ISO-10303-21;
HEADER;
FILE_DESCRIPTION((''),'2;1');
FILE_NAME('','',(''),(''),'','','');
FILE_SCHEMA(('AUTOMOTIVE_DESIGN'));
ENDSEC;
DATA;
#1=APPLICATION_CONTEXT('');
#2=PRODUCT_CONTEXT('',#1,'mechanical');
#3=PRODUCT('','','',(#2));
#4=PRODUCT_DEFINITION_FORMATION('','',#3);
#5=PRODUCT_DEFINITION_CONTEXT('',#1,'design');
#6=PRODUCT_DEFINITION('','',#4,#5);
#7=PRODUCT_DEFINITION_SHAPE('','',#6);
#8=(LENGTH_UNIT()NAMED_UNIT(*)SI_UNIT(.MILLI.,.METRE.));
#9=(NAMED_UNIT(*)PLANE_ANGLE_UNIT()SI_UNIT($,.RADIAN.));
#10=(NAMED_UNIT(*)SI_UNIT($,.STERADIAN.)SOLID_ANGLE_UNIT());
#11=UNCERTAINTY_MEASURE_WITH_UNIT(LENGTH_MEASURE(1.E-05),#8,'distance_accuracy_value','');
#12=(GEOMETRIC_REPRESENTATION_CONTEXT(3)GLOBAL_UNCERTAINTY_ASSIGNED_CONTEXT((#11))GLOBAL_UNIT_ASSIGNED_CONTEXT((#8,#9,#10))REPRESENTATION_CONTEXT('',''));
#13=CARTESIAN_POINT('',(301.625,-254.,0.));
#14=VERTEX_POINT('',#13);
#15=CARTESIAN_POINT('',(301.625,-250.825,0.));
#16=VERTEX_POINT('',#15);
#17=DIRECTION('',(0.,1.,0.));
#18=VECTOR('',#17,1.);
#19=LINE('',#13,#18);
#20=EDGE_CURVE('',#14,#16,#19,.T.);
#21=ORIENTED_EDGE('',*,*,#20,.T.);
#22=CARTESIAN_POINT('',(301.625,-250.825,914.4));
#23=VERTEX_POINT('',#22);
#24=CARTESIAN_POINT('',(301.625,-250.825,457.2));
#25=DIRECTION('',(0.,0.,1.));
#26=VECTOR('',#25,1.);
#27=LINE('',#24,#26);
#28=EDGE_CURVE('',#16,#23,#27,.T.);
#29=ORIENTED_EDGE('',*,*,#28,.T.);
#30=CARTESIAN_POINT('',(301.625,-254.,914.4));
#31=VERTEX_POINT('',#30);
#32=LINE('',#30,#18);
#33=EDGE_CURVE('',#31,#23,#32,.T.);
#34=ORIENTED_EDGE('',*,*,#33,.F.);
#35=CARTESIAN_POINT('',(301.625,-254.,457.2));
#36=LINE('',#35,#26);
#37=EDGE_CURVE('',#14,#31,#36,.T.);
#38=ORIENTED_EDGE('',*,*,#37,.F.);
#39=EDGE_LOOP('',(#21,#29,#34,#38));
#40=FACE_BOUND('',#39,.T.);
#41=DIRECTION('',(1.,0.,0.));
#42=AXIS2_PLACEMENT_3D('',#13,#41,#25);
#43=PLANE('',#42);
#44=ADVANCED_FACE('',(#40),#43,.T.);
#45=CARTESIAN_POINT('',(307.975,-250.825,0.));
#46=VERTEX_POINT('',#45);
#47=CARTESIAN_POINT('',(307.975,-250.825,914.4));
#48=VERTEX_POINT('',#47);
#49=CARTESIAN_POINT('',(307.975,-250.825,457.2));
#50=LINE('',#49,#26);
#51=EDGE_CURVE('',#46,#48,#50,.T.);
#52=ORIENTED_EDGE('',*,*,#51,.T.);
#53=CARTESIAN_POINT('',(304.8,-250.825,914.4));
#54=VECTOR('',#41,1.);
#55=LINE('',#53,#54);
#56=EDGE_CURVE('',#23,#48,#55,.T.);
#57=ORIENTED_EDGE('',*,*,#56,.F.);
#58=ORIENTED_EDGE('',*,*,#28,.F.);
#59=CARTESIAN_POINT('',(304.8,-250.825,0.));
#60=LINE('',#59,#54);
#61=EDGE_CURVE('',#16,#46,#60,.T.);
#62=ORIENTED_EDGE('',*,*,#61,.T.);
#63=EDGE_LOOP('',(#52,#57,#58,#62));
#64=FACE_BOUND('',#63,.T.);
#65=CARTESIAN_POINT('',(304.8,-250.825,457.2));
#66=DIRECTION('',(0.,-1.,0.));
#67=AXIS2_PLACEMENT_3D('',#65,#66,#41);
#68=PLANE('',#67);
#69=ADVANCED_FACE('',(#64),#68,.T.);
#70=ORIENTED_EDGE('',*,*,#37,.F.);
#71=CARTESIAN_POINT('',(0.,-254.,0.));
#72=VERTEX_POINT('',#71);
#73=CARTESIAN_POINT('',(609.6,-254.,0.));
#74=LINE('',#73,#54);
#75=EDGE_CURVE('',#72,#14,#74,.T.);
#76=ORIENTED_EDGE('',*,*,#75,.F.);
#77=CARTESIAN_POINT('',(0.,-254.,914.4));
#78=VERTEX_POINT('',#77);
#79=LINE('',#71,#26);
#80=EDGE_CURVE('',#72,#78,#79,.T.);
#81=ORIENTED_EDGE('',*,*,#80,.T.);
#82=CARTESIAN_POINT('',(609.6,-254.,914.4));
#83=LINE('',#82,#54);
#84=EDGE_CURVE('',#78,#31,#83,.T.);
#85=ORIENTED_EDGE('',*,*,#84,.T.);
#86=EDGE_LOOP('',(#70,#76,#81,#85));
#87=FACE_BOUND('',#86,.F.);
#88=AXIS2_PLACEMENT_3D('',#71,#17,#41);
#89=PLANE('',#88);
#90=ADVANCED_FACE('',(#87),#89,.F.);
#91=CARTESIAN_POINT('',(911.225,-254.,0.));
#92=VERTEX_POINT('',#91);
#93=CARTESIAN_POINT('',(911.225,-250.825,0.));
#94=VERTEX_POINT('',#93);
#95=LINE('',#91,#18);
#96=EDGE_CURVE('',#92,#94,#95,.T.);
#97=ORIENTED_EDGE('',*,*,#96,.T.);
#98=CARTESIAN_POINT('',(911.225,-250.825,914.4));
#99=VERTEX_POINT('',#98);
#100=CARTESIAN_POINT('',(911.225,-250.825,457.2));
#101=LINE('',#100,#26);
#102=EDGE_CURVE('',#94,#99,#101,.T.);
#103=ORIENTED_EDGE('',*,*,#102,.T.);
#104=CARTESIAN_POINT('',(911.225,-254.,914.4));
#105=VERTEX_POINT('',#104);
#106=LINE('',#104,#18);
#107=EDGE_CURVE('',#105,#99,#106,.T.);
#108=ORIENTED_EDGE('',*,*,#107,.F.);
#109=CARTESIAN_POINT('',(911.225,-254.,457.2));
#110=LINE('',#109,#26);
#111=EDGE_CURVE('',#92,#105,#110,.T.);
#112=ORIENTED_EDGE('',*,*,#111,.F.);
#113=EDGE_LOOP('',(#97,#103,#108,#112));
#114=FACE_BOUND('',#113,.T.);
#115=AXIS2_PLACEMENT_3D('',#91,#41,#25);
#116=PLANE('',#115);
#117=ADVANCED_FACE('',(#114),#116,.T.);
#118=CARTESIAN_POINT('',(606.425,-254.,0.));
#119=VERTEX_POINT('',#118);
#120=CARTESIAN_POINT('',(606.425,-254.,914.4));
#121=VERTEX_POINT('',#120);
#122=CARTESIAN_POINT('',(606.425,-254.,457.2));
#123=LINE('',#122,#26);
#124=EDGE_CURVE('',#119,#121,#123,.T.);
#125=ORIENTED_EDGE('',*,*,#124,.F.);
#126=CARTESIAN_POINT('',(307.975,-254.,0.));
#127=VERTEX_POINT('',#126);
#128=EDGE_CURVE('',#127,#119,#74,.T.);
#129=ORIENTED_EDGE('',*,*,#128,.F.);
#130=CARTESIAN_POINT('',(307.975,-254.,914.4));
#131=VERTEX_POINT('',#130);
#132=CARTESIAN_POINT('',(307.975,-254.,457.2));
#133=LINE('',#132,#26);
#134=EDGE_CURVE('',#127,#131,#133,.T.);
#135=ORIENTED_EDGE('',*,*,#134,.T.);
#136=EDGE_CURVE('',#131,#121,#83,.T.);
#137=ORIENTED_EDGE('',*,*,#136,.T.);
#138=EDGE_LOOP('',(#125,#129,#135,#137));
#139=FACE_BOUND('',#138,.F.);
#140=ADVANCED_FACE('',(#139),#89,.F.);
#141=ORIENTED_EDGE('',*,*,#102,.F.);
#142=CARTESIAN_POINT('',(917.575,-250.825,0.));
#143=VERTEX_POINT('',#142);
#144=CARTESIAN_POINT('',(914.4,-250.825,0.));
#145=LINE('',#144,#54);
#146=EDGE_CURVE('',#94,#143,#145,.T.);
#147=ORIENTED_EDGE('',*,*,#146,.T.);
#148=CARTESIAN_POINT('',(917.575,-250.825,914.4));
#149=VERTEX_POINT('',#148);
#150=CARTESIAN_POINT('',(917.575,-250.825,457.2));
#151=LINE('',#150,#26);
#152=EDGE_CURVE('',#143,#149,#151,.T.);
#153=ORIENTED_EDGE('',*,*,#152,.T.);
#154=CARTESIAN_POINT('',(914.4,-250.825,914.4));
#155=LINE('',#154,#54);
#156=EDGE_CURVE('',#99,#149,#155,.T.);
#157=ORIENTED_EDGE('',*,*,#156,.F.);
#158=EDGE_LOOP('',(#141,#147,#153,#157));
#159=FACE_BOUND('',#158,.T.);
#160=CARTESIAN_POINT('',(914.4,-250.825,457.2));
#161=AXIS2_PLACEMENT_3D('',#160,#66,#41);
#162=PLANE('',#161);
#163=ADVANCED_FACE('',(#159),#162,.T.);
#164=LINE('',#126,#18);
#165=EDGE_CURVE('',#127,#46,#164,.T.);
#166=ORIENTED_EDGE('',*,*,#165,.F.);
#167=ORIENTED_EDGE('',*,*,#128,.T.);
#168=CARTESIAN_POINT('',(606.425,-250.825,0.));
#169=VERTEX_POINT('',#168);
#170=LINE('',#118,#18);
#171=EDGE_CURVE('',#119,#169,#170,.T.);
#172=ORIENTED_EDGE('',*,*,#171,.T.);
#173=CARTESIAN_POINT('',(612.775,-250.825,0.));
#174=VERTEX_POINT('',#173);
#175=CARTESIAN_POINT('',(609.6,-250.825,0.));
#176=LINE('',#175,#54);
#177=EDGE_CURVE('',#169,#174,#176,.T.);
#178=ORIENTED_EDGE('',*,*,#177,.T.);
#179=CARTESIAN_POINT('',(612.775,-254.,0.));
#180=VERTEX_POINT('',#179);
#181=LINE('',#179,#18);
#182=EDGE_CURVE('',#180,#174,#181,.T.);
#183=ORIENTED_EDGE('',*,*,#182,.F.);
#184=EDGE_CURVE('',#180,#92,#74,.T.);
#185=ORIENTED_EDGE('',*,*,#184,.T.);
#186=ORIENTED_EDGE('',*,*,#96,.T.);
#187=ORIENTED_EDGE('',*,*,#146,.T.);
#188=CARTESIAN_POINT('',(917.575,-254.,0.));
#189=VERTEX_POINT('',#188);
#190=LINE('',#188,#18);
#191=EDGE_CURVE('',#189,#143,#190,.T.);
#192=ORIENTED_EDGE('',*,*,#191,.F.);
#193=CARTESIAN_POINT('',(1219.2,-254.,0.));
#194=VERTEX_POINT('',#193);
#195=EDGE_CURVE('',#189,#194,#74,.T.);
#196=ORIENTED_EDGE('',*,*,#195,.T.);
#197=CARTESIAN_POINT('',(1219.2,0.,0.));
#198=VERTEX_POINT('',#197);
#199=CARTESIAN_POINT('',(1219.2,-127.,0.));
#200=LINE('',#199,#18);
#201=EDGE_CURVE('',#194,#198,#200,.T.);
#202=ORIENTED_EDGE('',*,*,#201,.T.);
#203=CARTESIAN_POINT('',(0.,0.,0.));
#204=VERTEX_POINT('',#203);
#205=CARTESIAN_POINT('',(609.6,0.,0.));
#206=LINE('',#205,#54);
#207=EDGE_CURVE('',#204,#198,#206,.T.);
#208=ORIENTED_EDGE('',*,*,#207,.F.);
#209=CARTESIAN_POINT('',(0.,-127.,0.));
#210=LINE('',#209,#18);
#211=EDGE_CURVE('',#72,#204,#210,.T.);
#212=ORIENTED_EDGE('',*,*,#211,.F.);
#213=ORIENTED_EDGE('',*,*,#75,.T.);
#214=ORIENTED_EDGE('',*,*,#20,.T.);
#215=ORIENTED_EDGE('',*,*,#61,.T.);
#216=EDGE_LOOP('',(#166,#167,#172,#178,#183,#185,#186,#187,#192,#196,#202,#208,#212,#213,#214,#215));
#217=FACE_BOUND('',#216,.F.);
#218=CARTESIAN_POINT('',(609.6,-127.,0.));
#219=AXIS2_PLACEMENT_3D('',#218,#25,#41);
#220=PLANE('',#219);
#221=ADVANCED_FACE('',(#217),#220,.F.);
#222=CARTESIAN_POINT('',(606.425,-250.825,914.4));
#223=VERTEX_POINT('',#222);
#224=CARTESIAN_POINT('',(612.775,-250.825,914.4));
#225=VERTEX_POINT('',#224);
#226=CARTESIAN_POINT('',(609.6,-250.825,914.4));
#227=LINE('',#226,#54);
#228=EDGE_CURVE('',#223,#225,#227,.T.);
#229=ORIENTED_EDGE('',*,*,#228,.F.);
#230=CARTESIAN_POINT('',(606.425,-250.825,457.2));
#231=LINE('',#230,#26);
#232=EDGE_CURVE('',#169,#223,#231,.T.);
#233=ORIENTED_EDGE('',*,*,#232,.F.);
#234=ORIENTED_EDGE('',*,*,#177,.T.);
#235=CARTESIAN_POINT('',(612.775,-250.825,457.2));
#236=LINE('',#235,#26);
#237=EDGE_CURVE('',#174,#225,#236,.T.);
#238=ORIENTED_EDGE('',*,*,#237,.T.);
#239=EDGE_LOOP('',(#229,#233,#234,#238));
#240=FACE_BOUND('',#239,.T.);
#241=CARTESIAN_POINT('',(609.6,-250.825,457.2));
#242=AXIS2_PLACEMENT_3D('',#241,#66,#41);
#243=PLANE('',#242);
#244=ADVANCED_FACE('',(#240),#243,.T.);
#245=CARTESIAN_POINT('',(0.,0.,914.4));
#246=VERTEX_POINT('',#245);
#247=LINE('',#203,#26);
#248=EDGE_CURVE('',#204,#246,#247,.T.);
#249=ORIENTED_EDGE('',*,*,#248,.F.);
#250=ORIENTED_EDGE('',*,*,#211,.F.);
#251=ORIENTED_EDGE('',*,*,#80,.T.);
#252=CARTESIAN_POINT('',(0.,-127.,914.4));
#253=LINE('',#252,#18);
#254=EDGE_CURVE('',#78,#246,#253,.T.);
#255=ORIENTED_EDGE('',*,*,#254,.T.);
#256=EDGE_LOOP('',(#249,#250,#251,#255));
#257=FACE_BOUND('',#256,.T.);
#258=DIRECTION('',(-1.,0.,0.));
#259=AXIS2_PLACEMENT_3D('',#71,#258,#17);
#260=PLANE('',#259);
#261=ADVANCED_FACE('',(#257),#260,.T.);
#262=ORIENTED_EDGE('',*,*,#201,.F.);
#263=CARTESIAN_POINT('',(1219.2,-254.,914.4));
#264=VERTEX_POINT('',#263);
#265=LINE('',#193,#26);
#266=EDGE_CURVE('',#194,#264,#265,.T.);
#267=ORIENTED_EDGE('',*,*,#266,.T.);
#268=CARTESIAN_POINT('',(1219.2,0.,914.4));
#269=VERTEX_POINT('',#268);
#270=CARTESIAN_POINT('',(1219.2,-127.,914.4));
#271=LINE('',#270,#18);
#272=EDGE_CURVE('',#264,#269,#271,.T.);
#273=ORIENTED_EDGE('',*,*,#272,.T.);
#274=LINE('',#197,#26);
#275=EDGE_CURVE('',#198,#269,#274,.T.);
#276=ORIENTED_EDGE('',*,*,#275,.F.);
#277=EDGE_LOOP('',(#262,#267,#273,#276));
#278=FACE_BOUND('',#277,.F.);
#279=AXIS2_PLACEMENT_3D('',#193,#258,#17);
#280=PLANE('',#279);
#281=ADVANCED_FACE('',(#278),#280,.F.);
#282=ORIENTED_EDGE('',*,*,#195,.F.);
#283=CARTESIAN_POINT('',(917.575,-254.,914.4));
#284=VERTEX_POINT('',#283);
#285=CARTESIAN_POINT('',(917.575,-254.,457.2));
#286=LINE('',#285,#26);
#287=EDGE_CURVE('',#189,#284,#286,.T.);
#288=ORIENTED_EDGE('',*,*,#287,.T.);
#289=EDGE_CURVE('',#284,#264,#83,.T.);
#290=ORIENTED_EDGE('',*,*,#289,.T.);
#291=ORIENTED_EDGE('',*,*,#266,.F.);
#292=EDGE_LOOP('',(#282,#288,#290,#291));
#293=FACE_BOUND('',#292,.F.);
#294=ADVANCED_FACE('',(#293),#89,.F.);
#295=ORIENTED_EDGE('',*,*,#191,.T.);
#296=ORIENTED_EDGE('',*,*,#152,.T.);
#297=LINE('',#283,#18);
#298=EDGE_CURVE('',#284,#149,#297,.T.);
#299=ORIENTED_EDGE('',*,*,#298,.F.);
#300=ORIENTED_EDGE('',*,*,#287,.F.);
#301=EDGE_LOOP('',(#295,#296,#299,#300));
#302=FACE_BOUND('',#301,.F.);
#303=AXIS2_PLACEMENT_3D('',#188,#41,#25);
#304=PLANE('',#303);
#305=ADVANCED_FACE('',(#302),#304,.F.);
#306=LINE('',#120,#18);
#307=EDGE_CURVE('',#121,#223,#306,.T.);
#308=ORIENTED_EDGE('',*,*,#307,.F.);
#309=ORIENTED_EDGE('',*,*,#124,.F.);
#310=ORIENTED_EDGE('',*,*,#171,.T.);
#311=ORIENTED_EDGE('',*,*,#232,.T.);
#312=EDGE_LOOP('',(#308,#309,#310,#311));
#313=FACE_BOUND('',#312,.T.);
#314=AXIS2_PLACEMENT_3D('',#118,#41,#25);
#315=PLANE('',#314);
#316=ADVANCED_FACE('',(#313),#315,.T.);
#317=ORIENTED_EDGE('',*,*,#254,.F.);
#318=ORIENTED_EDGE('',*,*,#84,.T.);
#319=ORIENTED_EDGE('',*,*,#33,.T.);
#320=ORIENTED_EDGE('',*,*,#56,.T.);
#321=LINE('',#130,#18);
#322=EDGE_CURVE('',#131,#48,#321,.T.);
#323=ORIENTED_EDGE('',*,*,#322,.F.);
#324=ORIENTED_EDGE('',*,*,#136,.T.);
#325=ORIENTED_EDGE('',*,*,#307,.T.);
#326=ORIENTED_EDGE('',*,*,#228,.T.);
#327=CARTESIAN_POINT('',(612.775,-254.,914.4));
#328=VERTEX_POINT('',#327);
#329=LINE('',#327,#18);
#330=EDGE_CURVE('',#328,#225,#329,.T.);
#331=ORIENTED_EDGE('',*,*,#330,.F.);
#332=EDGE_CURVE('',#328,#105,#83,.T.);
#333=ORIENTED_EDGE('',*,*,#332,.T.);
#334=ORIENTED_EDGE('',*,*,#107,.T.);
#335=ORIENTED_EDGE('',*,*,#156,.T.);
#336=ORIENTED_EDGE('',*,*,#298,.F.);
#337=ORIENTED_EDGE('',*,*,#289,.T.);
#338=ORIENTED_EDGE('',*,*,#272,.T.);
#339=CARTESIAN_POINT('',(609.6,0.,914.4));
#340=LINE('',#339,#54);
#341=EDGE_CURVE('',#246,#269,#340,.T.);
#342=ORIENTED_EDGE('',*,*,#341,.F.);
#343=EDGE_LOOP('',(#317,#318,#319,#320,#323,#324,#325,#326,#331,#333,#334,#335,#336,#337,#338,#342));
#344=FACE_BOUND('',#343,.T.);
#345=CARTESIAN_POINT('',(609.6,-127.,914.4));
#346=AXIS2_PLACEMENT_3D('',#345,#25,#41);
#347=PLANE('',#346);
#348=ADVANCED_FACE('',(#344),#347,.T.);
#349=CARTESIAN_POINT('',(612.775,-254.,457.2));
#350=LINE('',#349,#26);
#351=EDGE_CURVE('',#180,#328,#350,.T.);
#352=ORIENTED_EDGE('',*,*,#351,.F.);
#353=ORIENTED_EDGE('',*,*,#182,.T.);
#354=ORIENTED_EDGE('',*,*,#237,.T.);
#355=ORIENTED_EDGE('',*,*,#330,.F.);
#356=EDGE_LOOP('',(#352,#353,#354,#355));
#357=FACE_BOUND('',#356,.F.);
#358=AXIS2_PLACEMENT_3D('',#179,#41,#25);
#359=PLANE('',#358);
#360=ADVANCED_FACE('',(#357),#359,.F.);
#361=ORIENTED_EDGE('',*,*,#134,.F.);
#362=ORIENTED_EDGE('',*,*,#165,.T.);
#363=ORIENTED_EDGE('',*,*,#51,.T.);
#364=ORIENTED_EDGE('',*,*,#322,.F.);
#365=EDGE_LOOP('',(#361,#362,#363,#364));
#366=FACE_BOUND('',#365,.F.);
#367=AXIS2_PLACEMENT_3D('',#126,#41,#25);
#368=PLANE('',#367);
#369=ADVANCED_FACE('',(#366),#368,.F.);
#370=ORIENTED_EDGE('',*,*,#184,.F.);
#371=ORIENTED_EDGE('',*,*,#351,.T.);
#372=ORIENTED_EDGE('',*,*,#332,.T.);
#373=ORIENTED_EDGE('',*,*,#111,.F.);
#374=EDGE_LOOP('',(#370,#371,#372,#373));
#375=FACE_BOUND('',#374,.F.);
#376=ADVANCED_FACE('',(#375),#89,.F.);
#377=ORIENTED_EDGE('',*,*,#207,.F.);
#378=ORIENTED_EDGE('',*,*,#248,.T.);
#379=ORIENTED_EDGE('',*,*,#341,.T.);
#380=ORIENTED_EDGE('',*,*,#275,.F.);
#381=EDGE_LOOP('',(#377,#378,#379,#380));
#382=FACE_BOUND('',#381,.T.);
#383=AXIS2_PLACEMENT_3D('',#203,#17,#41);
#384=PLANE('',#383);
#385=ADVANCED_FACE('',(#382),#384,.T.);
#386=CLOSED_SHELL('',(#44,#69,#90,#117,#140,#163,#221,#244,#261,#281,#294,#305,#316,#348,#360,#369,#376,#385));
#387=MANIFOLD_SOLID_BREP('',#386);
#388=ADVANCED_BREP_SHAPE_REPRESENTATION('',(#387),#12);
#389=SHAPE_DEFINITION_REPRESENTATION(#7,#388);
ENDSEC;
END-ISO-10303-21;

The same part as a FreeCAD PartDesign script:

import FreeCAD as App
import Part
import Sketcher
from FreeCAD import Vector
Q = App.Units.Quantity


def add_polygon(sketch, points):
    """Adds a closed chain of lines whose ends are joined by coincident constraints."""
    first, n = sketch.GeometryCount, len(points)
    for a, b in zip(points, points[1:] + points[:1]):
        sketch.addGeometry(Part.LineSegment(App.Vector(*a, 0), App.Vector(*b, 0)), False)
    for i in range(n):
        sketch.addConstraint(Sketcher.Constraint("Coincident", first + i, 2, first + (i + 1) % n, 1))

doc = App.newDocument("Part")
body = doc.addObject("PartDesign::Body", "Body")

sketch1 = body.newObject("Sketcher::SketchObject", "Sketch")
sketch1.AttachmentSupport = (doc.getObject("XY_Plane"), [""])
sketch1.MapMode = "FlatFace"
add_polygon(sketch1, [(0, 0), (0, -254), (1219, -254), (1219, 0)])
sketch1.addConstraint([
    Sketcher.Constraint("Vertical", 0),
    Sketcher.Constraint("Horizontal", 1),
    Sketcher.Constraint("Vertical", 2),
    Sketcher.Constraint("Horizontal", 3),
    Sketcher.Constraint("Coincident", 3, 2, -1, 1),
    Sketcher.Constraint("DistanceX", 1, 1, 1, 2, Q("48 in")),
    Sketcher.Constraint("DistanceY", 0, 2, 0, 1, Q("10 in")),
])
pad1 = body.newObject("PartDesign::Pad", "Pad")
pad1.Profile = sketch1
pad1.Length = Q("36 in")

sketch2 = body.newObject("Sketcher::SketchObject", "Sketch001")
sketch2.AttachmentSupport = (doc.getObject("XZ_Plane"), [""])
sketch2.MapMode = "FlatFace"
sketch2.AttachmentOffset = App.Placement(Vector(0, 0, 10 * 25.4), App.Rotation())
add_polygon(sketch2, [(606, 914), (606, 0), (613, 0), (613, 914)])
add_polygon(sketch2, [(911, 914), (911, 0), (918, 0), (918, 914)])
add_polygon(sketch2, [(302, 914), (302, 0), (308, 0), (308, 914)])
sketch2.addConstraint([
    Sketcher.Constraint("Vertical", 0),
    Sketcher.Constraint("Horizontal", 1),
    Sketcher.Constraint("Vertical", 2),
    Sketcher.Constraint("Horizontal", 3),
    Sketcher.Constraint("Vertical", 4),
    Sketcher.Constraint("Horizontal", 5),
    Sketcher.Constraint("Vertical", 6),
    Sketcher.Constraint("Horizontal", 7),
    Sketcher.Constraint("Vertical", 8),
    Sketcher.Constraint("Horizontal", 9),
    Sketcher.Constraint("Vertical", 10),
    Sketcher.Constraint("Horizontal", 11),
    Sketcher.Constraint("PointOnObject", 0, 2, -1),
    Sketcher.Constraint("PointOnObject", 4, 2, -1),
    Sketcher.Constraint("PointOnObject", 8, 2, -1),
    Sketcher.Constraint("Horizontal", 3, 2, 6, 2),
    Sketcher.Constraint("Horizontal", 7, 2, 10, 2),
    Sketcher.Constraint("Equal", 3, 5),
    Sketcher.Constraint("Equal", 7, 9),
    Sketcher.Constraint("DistanceY", 0, 2, 0, 1, Q("36 in")),
    Sketcher.Constraint("DistanceX", 0, 2, 4, 2, Q("12 in")),
    Sketcher.Constraint("DistanceX", 8, 2, 0, 2, Q("12 in")),
    Sketcher.Constraint("DistanceX", 1, 1, 1, 2, Q("0.25 in")),
    Sketcher.Constraint("DistanceX", -1, 1, 0, 2, Q("23.875 in")),
])
pocket1 = body.newObject("PartDesign::Pocket", "Pocket")
pocket1.Profile = sketch2
pocket1.Length = Q("0.125 in")

doc.recompute()
